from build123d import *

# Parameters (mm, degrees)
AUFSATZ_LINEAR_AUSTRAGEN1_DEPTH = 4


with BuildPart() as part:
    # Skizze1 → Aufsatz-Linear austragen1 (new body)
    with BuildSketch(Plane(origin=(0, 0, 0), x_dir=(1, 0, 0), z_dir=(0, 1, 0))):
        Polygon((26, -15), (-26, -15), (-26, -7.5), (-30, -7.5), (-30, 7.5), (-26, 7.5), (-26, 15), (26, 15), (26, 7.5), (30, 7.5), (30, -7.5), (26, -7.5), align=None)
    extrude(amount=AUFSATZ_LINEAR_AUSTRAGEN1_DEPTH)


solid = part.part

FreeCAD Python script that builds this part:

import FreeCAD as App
import Part
import Sketcher


def add_polygon(sketch, points):
    """Adds a closed chain of lines whose ends are joined by coincident constraints."""
    first, n = sketch.GeometryCount, len(points)
    for a, b in zip(points, points[1:] + points[:1]):
        sketch.addGeometry(Part.LineSegment(App.Vector(*a, 0), App.Vector(*b, 0)), False)
    for i in range(n):
        sketch.addConstraint(Sketcher.Constraint("Coincident", first + i, 2, first + (i + 1) % n, 1))

doc = App.newDocument("Part")
body = doc.addObject("PartDesign::Body", "Body")

sketch1 = doc.addObject("Sketcher::SketchObject", "Sketch")
body.addObject(sketch1)
sketch1.AttachmentSupport = (doc.XZ_Plane, [""])
sketch1.MapMode = "FlatFace"
add_polygon(sketch1, [(-26, 15), (26, 15), (26, 7.5), (30, 7.5), (30, -7.5), (26, -7.5), (26, -15), (-26, -15), (-26, -7.5), (-30, -7.5), (-30, 7.5), (-26, 7.5)])
sketch1.addConstraint(Sketcher.Constraint("Horizontal", 0))
sketch1.addConstraint(Sketcher.Constraint("Vertical", 1))
sketch1.addConstraint(Sketcher.Constraint("Horizontal", 2))
sketch1.addConstraint(Sketcher.Constraint("Vertical", 3))
sketch1.addConstraint(Sketcher.Constraint("Horizontal", 4))
sketch1.addConstraint(Sketcher.Constraint("Vertical", 5))
sketch1.addConstraint(Sketcher.Constraint("Horizontal", 6))
sketch1.addConstraint(Sketcher.Constraint("Vertical", 7))
sketch1.addConstraint(Sketcher.Constraint("Horizontal", 8))
sketch1.addConstraint(Sketcher.Constraint("Vertical", 9))
sketch1.addConstraint(Sketcher.Constraint("Horizontal", 10))
sketch1.addConstraint(Sketcher.Constraint("Vertical", 11))
sketch1.addConstraint(Sketcher.Constraint("Symmetric", 0, 2, 6, 2, -1, 1))
sketch1.addConstraint(Sketcher.Constraint("Symmetric", 2, 2, 8, 2, -1, 1))
sketch1.addConstraint(Sketcher.Constraint("Symmetric", 4, 2, 10, 2, -1, 1))
sketch1.addConstraint(Sketcher.Constraint("Symmetric", 4, 2, 7, 2, -2))
sketch1.addConstraint(Sketcher.Constraint("DistanceX", 0, 1, 0, 2, 52.0))
sketch1.addConstraint(Sketcher.Constraint("DistanceX", 2, 1, 2, 2, 4.0))
sketch1.addConstraint(Sketcher.Constraint("DistanceY", 3, 2, 3, 1, 15.0))
sketch1.addConstraint(Sketcher.Constraint("DistanceY", 1, 2, 1, 1, 7.5))
pad1 = doc.addObject("PartDesign::Pad", "Pad")
body.addObject(pad1)
pad1.Profile = sketch1
pad1.Length = 4
pad1.Reversed = True

doc.recompute()
